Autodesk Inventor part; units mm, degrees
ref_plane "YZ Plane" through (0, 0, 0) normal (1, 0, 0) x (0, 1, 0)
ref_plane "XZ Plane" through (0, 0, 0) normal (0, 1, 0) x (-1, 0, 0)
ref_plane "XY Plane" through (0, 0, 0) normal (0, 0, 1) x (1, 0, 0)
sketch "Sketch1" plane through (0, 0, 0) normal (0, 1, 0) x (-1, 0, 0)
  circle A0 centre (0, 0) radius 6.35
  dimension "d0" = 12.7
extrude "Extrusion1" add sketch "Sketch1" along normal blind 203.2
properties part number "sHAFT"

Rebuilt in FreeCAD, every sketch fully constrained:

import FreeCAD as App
import Part
import Sketcher
from FreeCAD import Vector
Q = App.Units.Quantity

doc = App.newDocument("Part")
body = doc.addObject("PartDesign::Body", "Body")

# Sketch on XZ plane
sketch1 = body.newObject("Sketcher::SketchObject", "Sketch")
sketch1.AttachmentSupport = (doc.getObject("XZ_Plane"), [""])
sketch1.MapMode = "FlatFace"
sketch1.addGeometry(Part.Circle(Vector(0, 0, 0), Vector(0, 0, 1), 6), False)
sketch1.addConstraint([
    Sketcher.Constraint("Coincident", 0, 3, -1, 1),
    Sketcher.Constraint("Diameter", 0, Q("0.5 in")),
])
pad1 = body.newObject("PartDesign::Pad", "Pad")
pad1.Profile = sketch1
pad1.Length = Q("8 in")
pad1.Reversed = True

doc.recompute()
